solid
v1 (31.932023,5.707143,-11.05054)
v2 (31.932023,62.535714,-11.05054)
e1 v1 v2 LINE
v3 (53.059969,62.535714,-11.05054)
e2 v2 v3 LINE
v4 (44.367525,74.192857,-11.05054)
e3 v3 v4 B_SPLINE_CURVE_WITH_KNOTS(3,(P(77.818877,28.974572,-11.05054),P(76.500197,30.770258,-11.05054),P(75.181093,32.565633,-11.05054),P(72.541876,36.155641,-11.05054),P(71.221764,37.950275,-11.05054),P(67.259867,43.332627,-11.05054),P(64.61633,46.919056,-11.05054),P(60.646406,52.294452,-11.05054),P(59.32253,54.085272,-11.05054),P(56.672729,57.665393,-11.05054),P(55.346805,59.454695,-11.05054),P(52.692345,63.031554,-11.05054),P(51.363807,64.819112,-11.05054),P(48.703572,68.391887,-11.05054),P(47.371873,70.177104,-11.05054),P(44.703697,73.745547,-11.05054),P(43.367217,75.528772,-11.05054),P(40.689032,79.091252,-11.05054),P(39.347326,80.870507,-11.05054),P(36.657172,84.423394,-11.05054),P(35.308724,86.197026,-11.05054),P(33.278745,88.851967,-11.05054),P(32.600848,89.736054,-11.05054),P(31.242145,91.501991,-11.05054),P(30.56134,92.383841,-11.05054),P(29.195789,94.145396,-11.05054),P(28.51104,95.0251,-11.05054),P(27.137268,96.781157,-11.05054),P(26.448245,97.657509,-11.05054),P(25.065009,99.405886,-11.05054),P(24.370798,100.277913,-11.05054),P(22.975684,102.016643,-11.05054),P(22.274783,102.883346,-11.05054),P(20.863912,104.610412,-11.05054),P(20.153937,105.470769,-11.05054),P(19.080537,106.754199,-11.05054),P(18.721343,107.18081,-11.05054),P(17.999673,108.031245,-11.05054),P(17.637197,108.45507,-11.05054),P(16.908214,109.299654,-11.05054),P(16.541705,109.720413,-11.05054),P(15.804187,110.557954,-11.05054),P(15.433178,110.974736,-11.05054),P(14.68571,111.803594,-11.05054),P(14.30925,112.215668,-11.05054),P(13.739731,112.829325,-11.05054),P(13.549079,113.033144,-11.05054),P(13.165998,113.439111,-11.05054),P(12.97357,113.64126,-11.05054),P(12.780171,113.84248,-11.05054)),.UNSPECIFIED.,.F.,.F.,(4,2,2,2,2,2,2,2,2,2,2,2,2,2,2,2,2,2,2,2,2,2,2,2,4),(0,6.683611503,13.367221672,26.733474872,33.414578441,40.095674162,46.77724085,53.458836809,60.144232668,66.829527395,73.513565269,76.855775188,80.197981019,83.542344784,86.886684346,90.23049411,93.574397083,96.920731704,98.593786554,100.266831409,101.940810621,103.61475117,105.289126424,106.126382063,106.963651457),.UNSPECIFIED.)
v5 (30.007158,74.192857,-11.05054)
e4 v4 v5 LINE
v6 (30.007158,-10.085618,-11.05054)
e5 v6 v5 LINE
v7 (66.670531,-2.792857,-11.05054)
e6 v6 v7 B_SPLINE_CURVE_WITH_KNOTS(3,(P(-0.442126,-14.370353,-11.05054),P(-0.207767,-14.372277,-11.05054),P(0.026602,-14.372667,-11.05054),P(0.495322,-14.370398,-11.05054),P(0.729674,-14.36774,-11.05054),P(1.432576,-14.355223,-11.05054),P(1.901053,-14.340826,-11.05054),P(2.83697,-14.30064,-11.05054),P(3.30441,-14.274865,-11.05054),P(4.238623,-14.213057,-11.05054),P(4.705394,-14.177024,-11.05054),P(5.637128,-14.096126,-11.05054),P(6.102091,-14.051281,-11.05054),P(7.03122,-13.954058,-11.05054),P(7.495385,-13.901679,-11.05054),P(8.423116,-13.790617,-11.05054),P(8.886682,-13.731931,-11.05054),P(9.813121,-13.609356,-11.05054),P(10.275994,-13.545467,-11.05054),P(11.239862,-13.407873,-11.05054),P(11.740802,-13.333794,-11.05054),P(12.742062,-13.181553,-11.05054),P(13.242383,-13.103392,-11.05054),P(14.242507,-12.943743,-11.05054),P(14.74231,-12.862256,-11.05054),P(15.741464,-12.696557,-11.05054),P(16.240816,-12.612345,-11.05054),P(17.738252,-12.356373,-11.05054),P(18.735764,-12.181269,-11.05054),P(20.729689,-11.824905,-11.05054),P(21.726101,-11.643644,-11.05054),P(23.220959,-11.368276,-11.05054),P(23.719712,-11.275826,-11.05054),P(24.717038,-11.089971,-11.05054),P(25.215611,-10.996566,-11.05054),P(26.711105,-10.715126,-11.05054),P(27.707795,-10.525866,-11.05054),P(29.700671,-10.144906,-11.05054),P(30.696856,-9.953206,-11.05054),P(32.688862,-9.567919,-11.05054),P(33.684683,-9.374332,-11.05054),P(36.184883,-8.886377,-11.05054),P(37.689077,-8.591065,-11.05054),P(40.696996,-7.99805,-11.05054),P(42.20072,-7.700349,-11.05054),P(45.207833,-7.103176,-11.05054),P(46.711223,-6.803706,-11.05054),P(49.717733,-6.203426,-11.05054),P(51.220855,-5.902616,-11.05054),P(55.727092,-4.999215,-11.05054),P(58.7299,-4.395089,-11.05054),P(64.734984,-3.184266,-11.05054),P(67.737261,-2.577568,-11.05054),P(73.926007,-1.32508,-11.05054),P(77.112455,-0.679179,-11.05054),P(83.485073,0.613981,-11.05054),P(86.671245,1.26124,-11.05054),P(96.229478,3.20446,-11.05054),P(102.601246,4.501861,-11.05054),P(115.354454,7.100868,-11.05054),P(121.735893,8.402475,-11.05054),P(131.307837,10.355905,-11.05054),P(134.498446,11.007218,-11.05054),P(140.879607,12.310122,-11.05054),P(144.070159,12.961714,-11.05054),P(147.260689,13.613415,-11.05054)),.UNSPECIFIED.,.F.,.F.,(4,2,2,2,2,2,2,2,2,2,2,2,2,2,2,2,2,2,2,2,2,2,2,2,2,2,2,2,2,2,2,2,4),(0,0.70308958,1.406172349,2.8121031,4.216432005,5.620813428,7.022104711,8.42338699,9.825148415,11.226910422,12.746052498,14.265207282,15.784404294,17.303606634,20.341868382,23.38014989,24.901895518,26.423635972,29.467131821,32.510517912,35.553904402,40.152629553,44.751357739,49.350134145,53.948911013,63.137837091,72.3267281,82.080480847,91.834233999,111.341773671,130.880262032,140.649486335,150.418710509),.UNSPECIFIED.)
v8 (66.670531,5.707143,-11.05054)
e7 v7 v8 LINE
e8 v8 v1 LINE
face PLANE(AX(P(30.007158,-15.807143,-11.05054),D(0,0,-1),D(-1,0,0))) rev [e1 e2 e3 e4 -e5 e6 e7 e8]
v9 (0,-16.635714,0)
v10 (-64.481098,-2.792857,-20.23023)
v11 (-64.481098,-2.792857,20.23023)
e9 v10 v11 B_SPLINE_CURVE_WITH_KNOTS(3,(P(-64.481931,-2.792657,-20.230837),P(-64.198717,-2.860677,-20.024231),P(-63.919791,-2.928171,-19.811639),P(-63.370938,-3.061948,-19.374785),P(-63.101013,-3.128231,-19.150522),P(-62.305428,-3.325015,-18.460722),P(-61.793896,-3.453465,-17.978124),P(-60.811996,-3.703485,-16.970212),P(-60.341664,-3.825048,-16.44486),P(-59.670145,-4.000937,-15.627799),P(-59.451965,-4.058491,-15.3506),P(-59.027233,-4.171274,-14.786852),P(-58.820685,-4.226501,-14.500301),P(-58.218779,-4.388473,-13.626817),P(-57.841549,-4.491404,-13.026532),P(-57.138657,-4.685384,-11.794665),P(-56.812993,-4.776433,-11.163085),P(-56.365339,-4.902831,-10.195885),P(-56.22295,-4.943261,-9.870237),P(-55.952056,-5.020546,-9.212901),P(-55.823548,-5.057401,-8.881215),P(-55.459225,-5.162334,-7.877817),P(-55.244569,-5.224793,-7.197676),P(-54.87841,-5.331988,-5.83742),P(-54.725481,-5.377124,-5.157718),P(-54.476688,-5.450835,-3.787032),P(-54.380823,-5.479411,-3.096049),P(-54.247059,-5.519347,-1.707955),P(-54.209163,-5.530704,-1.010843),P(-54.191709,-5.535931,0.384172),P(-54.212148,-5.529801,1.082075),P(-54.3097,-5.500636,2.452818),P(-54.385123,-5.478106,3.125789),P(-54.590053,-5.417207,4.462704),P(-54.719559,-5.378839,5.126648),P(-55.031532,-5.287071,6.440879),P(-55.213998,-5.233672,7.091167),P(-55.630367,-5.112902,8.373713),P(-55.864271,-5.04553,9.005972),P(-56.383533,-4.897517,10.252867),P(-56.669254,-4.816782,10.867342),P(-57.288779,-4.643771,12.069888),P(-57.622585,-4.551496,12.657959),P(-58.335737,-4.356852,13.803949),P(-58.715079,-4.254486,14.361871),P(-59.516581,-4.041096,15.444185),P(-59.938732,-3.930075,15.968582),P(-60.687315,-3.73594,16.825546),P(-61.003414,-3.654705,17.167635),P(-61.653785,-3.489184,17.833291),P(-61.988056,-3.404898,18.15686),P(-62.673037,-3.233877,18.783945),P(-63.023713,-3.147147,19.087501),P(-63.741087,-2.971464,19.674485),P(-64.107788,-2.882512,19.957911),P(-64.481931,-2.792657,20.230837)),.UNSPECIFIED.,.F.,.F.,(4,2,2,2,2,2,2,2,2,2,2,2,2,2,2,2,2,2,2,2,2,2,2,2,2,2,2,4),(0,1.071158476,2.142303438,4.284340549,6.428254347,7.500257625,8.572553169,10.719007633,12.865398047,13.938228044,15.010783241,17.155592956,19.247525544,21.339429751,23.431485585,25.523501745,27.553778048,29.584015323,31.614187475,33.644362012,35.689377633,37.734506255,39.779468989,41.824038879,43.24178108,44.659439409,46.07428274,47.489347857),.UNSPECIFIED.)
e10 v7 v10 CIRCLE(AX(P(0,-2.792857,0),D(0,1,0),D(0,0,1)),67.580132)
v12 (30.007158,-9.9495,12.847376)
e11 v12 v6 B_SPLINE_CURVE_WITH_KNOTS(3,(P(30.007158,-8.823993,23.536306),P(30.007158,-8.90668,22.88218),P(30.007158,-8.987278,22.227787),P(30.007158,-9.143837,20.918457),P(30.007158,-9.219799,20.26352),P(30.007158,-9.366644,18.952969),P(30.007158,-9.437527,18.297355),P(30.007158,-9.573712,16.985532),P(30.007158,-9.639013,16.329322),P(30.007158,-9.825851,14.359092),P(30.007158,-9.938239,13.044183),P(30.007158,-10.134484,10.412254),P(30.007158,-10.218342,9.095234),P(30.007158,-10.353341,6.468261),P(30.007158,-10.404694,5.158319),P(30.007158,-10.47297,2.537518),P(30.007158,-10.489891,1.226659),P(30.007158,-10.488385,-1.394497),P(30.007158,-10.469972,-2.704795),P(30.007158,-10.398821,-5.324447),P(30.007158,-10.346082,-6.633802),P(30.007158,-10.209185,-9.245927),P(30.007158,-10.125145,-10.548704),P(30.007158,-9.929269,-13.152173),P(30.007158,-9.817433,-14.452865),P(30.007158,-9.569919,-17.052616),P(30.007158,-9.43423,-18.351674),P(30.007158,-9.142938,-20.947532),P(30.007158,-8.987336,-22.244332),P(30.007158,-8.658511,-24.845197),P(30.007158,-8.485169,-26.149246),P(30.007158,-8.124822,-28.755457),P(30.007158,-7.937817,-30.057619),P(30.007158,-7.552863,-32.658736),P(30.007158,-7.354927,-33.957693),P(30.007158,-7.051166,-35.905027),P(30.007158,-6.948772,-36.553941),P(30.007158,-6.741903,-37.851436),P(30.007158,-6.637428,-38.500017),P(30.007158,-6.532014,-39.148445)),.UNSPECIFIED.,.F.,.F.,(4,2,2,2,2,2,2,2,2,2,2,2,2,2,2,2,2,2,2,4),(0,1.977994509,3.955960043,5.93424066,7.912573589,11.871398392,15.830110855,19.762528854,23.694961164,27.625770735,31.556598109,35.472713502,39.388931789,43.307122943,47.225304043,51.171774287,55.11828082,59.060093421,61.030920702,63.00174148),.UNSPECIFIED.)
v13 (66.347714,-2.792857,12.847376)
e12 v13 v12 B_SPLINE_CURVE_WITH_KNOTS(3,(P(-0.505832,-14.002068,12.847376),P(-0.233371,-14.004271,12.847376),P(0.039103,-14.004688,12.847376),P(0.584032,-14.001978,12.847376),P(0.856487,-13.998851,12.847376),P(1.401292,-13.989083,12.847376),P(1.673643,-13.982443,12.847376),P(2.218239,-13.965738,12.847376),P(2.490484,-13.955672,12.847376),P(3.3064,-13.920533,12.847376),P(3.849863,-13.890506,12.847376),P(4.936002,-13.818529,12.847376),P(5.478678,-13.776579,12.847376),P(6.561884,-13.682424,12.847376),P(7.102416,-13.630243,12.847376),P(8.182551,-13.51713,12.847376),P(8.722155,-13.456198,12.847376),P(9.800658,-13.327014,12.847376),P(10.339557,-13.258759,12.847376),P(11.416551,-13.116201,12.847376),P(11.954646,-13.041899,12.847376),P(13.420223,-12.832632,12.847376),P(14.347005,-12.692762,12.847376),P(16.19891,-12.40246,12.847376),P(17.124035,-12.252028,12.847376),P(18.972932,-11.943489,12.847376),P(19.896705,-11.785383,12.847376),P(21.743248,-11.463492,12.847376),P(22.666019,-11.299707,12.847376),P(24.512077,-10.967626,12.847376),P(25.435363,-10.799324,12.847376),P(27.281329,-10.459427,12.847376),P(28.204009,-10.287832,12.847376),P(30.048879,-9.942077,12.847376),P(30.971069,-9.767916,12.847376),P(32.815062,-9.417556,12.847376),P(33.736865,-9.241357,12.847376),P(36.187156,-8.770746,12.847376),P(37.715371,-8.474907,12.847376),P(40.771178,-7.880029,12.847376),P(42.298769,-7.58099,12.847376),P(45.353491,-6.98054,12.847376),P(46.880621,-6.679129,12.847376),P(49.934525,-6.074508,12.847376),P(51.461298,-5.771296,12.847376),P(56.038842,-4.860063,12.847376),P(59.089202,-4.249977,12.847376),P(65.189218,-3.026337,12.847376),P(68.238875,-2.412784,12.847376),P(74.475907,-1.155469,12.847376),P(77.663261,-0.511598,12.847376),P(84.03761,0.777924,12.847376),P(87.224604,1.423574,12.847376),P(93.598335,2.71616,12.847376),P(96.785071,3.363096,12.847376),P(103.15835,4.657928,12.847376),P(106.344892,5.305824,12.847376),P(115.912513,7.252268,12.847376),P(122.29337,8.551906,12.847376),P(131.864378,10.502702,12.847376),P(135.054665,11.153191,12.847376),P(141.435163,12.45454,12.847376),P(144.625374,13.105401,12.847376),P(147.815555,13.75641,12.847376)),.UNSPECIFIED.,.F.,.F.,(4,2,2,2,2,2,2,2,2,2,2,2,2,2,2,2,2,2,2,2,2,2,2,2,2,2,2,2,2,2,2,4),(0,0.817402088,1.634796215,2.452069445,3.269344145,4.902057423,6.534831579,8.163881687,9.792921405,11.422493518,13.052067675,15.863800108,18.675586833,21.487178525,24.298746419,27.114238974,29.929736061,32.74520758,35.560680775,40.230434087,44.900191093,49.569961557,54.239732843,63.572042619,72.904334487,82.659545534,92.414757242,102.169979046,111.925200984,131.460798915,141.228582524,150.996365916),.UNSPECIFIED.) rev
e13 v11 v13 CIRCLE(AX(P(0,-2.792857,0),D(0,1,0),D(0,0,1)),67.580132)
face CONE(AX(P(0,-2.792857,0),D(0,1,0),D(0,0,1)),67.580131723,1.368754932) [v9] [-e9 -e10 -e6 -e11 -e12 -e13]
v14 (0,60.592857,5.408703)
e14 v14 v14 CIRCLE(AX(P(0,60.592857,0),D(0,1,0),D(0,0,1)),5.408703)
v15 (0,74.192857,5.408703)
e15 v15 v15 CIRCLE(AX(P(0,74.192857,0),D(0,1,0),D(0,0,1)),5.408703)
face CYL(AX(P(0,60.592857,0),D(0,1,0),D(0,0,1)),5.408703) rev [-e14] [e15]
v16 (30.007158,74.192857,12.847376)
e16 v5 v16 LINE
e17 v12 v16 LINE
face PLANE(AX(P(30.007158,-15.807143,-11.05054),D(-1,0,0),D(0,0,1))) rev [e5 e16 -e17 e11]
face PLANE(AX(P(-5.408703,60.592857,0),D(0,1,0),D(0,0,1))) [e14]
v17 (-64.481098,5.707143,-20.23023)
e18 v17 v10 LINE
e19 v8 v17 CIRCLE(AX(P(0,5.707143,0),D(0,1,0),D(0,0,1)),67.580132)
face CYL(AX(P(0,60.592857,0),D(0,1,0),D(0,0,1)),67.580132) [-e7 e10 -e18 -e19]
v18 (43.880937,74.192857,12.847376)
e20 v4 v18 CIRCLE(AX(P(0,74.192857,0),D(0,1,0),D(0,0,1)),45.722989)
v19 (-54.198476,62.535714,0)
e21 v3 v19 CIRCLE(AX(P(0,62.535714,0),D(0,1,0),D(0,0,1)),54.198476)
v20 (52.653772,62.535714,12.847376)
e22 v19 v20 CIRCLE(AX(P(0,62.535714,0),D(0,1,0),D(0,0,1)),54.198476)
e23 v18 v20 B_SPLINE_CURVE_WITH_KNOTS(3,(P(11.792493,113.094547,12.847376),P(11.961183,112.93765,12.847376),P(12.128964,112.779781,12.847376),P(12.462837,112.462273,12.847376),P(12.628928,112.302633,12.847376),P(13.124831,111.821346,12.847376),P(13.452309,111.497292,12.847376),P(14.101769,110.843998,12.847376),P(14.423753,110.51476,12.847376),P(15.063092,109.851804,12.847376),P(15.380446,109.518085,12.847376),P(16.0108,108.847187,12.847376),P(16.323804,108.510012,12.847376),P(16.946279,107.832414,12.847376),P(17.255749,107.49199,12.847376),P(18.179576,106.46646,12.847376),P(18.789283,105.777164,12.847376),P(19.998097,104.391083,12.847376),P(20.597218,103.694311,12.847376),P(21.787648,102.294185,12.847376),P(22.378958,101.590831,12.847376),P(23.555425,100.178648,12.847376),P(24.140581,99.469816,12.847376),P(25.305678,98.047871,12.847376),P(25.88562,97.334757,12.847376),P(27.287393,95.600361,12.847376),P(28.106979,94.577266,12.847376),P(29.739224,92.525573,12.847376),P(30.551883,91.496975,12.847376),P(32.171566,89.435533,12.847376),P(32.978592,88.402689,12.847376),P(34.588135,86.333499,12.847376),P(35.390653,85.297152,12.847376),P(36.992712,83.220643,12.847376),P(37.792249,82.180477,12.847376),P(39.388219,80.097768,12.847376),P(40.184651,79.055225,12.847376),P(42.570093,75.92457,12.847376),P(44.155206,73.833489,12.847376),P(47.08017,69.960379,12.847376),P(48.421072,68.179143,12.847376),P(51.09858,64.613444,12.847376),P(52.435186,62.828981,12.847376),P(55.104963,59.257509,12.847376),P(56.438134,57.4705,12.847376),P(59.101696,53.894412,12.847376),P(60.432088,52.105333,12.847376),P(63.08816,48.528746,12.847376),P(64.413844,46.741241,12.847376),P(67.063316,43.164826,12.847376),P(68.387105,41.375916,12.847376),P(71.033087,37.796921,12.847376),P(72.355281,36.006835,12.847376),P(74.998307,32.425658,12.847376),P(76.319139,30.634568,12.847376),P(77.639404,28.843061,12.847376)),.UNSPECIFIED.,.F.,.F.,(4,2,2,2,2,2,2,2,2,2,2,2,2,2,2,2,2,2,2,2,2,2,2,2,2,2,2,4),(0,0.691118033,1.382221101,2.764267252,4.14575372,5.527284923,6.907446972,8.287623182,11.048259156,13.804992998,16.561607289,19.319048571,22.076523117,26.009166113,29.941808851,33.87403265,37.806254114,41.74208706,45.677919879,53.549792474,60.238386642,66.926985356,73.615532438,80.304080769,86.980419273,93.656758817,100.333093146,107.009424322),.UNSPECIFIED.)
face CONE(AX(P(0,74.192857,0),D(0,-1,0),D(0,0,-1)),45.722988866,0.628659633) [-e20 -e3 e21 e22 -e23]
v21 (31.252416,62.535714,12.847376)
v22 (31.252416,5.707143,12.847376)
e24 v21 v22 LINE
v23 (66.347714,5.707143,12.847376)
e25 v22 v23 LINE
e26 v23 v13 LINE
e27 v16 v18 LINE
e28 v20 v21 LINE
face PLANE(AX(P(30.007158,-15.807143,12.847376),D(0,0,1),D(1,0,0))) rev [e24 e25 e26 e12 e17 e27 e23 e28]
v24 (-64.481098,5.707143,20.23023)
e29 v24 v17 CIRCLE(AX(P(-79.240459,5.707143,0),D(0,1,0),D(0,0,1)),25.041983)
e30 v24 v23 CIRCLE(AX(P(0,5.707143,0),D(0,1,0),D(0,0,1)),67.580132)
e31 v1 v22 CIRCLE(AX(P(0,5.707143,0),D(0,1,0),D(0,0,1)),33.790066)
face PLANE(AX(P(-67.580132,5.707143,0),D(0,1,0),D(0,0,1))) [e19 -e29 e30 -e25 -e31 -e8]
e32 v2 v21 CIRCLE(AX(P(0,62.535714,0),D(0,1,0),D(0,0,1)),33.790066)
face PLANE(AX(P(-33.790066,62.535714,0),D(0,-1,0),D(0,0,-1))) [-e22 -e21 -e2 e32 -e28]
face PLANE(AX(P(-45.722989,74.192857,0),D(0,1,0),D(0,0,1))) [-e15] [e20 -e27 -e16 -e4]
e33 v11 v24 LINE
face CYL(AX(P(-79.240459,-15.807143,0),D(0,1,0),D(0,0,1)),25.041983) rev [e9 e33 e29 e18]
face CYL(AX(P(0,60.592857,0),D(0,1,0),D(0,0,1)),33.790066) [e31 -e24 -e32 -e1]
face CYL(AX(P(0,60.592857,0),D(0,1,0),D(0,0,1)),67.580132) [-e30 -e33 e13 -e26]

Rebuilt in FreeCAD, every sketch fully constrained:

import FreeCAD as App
import Part
import Sketcher
from FreeCAD import Vector

doc = App.newDocument("Part")
params = doc.addObject("Spreadsheet::Sheet", "Params")
for row, (alias, value) in enumerate([
    ("sketch1_height", "8.5 mm"),
    ("sketch1_height2", "13.6 mm"),
    ("revolution_angle", "360 deg"),
    ("pocket1_length", "90 mm"),
], start=1):
    params.set(f"A{row}", alias)
    params.set(f"B{row}", "=" + value)
    params.setAlias(f"B{row}", alias)

body = doc.addObject("PartDesign::Body", "Body")

sketch1 = body.newObject("Sketcher::SketchObject", "Sketch")
sketch1.AttachmentSupport = (doc.getObject("XY_Plane"), [""])
sketch1.MapMode = "FlatFace"
sketch1.addGeometry([
    Part.LineSegment(Vector(-5, 74, 0), Vector(-46, 74, 0)),
    Part.LineSegment(Vector(-46, 74, 0), Vector(-54, 63, 0)),
    Part.LineSegment(Vector(-54, 63, 0), Vector(-34, 63, 0)),
    Part.LineSegment(Vector(-34, 63, 0), Vector(-34, 6, 0)),
    Part.LineSegment(Vector(-34, 6, 0), Vector(-68, 6, 0)),
    Part.LineSegment(Vector(-68, 6, 0), Vector(-68, -3, 0)),
    Part.LineSegment(Vector(-68, -3, 0), Vector(0, -17, 0)),
    Part.LineSegment(Vector(0, -17, 0), Vector(0, 61, 0)),
    Part.LineSegment(Vector(0, 61, 0), Vector(-5, 61, 0)),
    Part.LineSegment(Vector(-5, 61, 0), Vector(-5, 74, 0)),
], False)
sketch1.addConstraint([
    Sketcher.Constraint("Coincident", 0, 2, 1, 1),
    Sketcher.Constraint("Coincident", 1, 2, 2, 1),
    Sketcher.Constraint("Coincident", 2, 2, 3, 1),
    Sketcher.Constraint("Coincident", 3, 2, 4, 1),
    Sketcher.Constraint("Coincident", 4, 2, 5, 1),
    Sketcher.Constraint("Coincident", 5, 2, 6, 1),
    Sketcher.Constraint("Coincident", 6, 2, 7, 1),
    Sketcher.Constraint("Coincident", 7, 2, 8, 1),
    Sketcher.Constraint("Coincident", 8, 2, 9, 1),
    Sketcher.Constraint("Coincident", 9, 2, 0, 1),
    Sketcher.Constraint("Horizontal", 0),
    Sketcher.Constraint("Horizontal", 2),
    Sketcher.Constraint("Vertical", 3),
    Sketcher.Constraint("Horizontal", 4),
    Sketcher.Constraint("Vertical", 5),
    Sketcher.Constraint("Vertical", 7),
    Sketcher.Constraint("Horizontal", 8),
    Sketcher.Constraint("Vertical", 9),
    Sketcher.Constraint("PointOnObject", 6, 2, -2),
    Sketcher.Constraint("DistanceY", 5, 2, 5, 1, 8.5),
    Sketcher.Constraint("DistanceY", 9, 1, 9, 2, 13.6),
    Sketcher.Constraint("DistanceX", 2, 1, 2, 2, 20.40841),
    Sketcher.Constraint("DistanceY", 3, 2, 3, 1, 56.828571),
    Sketcher.Constraint("DistanceY", 7, 1, 7, 2, 77.228571),
    Sketcher.Constraint("DistanceX", 0, 2, 0, 1, 40.314286),
    Sketcher.Constraint("DistanceX", 4, 2, 4, 1, 33.790066),
    Sketcher.Constraint("DistanceX", 8, 2, 8, 1, 5.408703),
    Sketcher.Constraint("DistanceX", 4, 2, -1, 1, 67.580132),
    Sketcher.Constraint("DistanceY", 6, 2, 2, 2, 79.171429),
    Sketcher.Constraint("DistanceY", -1, 1, 0, 2, 74.192857),
])
sketch1.setExpression("Constraints[19]", "Params.sketch1_height")
sketch1.setExpression("Constraints[20]", "Params.sketch1_height2")
revolution = body.newObject("PartDesign::Revolution", "Revolution")
revolution.Profile = sketch1
revolution.ReferenceAxis = (sketch1, ["V_Axis"])
revolution.setExpression("Angle", "Params.revolution_angle")

sketch2 = body.newObject("Sketcher::SketchObject", "Sketch001")
sketch2.AttachmentSupport = (doc.getObject("XZ_Plane"), [""])
sketch2.MapMode = "FlatFace"
sketch2.AttachmentOffset = App.Placement(Vector(0, 0, -74.192857), App.Rotation())
sketch2.addGeometry([
    Part.Circle(Vector(-79, 0, 0), Vector(0, 0, 1), 25),
    Part.LineSegment(Vector(30, -11, 0), Vector(30, 13, 0)),
    Part.LineSegment(Vector(30, 13, 0), Vector(74, 13, 0)),
    Part.LineSegment(Vector(74, 13, 0), Vector(74, -11, 0)),
    Part.LineSegment(Vector(74, -11, 0), Vector(30, -11, 0)),
], False)
sketch2.addConstraint([
    Sketcher.Constraint("Coincident", 1, 2, 2, 1),
    Sketcher.Constraint("Coincident", 2, 2, 3, 1),
    Sketcher.Constraint("Coincident", 3, 2, 4, 1),
    Sketcher.Constraint("Coincident", 4, 2, 1, 1),
    Sketcher.Constraint("Vertical", 1),
    Sketcher.Constraint("Horizontal", 2),
    Sketcher.Constraint("Vertical", 3),
    Sketcher.Constraint("Horizontal", 4),
    Sketcher.Constraint("PointOnObject", 0, 3, -1),
    Sketcher.Constraint("Diameter", 0, 50.083966),
    Sketcher.Constraint("DistanceX", 2, 1, 2, 2, 44.202161),
    Sketcher.Constraint("DistanceY", 1, 1, 1, 2, 23.897916),
    Sketcher.Constraint("DistanceX", 0, 3, -1, 1, 79.240459),
    Sketcher.Constraint("DistanceX", -1, 1, 2, 2, 74.209319),
    Sketcher.Constraint("DistanceY", 3, 2, -1, 1, 11.05054),
])
pocket1 = body.newObject("PartDesign::Pocket", "Pocket")
pocket1.Profile = sketch2
pocket1.setExpression("Length", "Params.pocket1_length")
pocket1.Reversed = True

doc.recompute()
